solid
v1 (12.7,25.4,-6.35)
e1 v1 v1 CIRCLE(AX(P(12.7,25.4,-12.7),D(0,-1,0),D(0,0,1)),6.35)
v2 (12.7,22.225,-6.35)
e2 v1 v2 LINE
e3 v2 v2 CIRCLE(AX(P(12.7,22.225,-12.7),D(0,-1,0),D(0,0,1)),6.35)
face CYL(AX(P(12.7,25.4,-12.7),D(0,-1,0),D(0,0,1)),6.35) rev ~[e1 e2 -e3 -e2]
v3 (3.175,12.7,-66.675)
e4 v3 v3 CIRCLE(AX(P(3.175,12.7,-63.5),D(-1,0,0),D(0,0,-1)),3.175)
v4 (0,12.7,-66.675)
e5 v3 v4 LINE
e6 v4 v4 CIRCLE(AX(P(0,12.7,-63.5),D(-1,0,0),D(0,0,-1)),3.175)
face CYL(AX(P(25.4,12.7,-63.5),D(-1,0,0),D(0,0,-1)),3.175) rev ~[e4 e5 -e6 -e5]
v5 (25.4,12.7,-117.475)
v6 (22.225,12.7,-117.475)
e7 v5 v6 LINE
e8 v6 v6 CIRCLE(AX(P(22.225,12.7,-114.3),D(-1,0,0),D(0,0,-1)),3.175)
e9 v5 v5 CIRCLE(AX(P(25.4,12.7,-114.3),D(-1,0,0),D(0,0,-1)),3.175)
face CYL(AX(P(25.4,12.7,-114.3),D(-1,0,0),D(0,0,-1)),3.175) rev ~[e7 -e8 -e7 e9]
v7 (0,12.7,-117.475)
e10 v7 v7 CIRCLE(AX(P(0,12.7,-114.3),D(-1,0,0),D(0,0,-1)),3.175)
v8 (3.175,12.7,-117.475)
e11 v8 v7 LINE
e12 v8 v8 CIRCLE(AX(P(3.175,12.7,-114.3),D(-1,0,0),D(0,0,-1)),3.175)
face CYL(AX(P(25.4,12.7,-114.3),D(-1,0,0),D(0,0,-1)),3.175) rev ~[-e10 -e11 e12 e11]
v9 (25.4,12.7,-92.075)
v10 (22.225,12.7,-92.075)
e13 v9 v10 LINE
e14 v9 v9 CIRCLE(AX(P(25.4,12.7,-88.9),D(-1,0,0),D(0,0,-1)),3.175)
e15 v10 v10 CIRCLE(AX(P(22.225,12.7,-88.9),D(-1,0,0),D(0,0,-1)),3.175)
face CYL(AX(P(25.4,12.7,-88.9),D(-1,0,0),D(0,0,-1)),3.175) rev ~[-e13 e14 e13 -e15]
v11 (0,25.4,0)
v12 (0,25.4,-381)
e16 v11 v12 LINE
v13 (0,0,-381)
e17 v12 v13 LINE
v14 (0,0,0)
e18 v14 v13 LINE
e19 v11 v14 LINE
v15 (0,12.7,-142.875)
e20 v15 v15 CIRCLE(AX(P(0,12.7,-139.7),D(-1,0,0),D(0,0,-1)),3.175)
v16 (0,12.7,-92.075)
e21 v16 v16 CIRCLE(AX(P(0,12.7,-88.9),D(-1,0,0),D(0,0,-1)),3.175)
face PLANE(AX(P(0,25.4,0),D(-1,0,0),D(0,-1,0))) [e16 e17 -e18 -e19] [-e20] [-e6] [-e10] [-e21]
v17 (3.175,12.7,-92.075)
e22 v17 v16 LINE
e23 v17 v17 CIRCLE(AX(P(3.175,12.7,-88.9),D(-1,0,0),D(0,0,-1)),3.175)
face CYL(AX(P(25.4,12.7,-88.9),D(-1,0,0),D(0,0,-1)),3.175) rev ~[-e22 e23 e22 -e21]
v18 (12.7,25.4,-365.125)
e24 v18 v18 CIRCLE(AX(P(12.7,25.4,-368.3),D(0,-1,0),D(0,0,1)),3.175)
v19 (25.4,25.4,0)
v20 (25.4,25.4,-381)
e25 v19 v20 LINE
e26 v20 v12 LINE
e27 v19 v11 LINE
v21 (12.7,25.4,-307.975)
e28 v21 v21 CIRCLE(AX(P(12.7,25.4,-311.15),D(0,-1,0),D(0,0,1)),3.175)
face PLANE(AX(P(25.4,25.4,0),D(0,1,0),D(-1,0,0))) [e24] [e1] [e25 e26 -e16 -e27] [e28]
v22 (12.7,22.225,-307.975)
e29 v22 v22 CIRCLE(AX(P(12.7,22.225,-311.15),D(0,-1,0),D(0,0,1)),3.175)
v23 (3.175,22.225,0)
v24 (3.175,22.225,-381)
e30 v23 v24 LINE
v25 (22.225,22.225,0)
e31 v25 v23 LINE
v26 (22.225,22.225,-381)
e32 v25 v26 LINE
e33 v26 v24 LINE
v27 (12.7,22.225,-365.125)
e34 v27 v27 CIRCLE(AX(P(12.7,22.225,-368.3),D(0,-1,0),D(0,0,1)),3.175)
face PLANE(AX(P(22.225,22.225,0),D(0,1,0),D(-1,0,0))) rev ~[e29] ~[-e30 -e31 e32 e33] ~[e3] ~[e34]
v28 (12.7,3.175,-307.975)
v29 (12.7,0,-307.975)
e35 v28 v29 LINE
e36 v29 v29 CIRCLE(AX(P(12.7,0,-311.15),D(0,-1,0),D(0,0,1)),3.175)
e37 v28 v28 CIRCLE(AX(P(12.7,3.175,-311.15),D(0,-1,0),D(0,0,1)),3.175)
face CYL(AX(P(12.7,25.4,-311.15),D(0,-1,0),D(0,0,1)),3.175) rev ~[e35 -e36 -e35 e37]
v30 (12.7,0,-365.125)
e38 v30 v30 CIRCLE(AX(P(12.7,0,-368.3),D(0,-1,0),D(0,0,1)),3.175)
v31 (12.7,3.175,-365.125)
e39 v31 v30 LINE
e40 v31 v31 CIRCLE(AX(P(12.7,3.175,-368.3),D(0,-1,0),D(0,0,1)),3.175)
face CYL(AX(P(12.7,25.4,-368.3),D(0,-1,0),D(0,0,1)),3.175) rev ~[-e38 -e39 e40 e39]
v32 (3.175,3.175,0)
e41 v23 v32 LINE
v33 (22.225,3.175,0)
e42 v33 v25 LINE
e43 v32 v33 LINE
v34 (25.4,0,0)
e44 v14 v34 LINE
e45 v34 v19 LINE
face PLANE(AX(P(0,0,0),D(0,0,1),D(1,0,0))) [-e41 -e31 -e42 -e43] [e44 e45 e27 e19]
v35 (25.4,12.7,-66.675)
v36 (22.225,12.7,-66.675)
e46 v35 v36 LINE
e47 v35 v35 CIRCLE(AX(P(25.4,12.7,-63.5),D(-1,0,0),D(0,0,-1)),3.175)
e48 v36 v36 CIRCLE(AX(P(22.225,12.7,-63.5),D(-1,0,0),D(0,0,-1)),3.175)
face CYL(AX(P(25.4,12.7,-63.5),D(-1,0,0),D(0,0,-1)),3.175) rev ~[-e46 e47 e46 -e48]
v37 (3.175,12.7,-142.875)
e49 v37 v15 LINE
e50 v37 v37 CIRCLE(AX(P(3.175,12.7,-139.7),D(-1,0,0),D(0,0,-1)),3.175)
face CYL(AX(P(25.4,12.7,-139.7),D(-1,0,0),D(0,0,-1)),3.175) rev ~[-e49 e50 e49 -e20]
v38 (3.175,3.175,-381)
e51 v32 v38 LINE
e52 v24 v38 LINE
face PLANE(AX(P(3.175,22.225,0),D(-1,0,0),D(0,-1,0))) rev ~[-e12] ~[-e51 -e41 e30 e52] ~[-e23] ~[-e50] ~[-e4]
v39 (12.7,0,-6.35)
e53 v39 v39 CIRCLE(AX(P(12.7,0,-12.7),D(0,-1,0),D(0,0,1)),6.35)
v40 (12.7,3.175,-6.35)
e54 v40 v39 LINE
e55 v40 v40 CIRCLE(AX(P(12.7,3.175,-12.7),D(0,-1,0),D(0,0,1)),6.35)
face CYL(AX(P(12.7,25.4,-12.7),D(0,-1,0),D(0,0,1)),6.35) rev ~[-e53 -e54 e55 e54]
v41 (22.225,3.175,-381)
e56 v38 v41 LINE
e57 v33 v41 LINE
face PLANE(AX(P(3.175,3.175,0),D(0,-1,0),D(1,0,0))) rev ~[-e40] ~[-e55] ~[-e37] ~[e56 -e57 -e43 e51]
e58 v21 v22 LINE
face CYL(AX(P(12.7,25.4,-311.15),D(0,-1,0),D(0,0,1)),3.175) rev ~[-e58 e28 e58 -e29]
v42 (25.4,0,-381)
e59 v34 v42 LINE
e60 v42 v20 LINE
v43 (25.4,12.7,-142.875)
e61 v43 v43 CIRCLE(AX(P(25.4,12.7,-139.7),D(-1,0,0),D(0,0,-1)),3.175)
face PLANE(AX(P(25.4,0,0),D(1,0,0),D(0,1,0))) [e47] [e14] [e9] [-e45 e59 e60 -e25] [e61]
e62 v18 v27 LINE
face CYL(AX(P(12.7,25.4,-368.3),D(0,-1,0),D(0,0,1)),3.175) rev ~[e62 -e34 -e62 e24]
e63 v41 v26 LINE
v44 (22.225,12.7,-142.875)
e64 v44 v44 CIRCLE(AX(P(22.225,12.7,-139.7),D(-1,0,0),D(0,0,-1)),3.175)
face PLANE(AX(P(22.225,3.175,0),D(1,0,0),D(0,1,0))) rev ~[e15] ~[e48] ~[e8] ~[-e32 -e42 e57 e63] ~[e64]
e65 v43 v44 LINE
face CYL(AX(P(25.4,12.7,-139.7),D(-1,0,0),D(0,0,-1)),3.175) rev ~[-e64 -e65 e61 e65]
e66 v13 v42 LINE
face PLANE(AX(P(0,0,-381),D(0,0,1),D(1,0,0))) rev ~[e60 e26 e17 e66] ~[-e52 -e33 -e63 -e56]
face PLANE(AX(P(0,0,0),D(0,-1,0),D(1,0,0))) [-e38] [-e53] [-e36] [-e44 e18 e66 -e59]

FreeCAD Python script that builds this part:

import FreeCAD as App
import Part
import Sketcher

V = App.Vector
Q = App.Units.Quantity


def add_polygon(sketch, points):
    """Adds a closed chain of lines whose ends are joined by coincident constraints."""
    first, n = sketch.GeometryCount, len(points)
    for a, b in zip(points, points[1:] + points[:1]):
        sketch.addGeometry(Part.LineSegment(App.Vector(*a, 0), App.Vector(*b, 0)), False)
    for i in range(n):
        sketch.addConstraint(Sketcher.Constraint("Coincident", first + i, 2, first + (i + 1) % n, 1))

doc = App.newDocument("Part")
params = doc.addObject("Spreadsheet::Sheet", "Params")
for row, (alias, value) in enumerate([
    ("sketch1_width", "1 in"),
    ("pad1_length", "15 in"),
    ("sketch2_diameter", "0.25 in"),
    ("hole_diameter", "0.25 in"),
    ("hole_depth", "1 in"),
    ("sketch3_diameter", "0.25 in"),
    ("hole2_diameter", "0.25 in"),
    ("hole2_depth", "1 in"),
    ("sketch4_diameter", "0.5 in"),
    ("hole3_diameter", "0.5 in"),
    ("hole3_depth", "1 in"),
], start=1):
    params.set(f"A{row}", alias)
    params.set(f"B{row}", "=" + value)
    params.setAlias(f"B{row}", alias)

body = doc.addObject("PartDesign::Body", "Body")

# Sketch on XY plane
sketch1 = doc.addObject("Sketcher::SketchObject", "Sketch")
body.addObject(sketch1)
sketch1.AttachmentSupport = (doc.XY_Plane, [""])
sketch1.MapMode = "FlatFace"
add_polygon(sketch1, [(0, 25), (0, 0), (25, 0), (25, 25)])  # lines 0-3
add_polygon(sketch1, [(22, 3), (3, 3), (3, 22), (22, 22)])  # lines 4-7
sketch1.addConstraint([
    Sketcher.Constraint("Vertical", 0),
    Sketcher.Constraint("Horizontal", 1),
    Sketcher.Constraint("Vertical", 2),
    Sketcher.Constraint("Horizontal", 3),
    Sketcher.Constraint("Horizontal", 4),
    Sketcher.Constraint("Vertical", 5),
    Sketcher.Constraint("Horizontal", 6),
    Sketcher.Constraint("Vertical", 7),
    Sketcher.Constraint("Coincident", 0, 2, -1, 1),
    Sketcher.Constraint("Equal", 3, 0),
    Sketcher.Constraint("Equal", 6, 5),
    Sketcher.Constraint("DistanceX", 1, 1, 1, 2, Q("1 in")),
    Sketcher.Constraint("DistanceX", -1, 1, 4, 2, Q("0.125 in")),
    Sketcher.Constraint("DistanceY", -1, 1, 4, 2, Q("0.125 in")),
    Sketcher.Constraint("DistanceY", 5, 2, 3, 2, Q("0.125 in")),
])
sketch1.setExpression("Constraints[19]", "Params.sketch1_width")
pad1 = doc.addObject("PartDesign::Pad", "Pad")
body.addObject(pad1)
pad1.Profile = sketch1
pad1.setExpression("Length", "Params.pad1_length")
pad1.Reversed = True

# Sketch on XZ plane
sketch2 = doc.addObject("Sketcher::SketchObject", "Sketch001")
body.addObject(sketch2)
sketch2.AttachmentSupport = (doc.XZ_Plane, [""])
sketch2.MapMode = "FlatFace"
sketch2.AttachmentOffset = App.Placement(V(0, 0, -1 * 25.4), App.Rotation())
sketch2.addGeometry([
    Part.Circle(V(12.7, -368.3, 0), V(0, 0, 1), 3.2),
    Part.Circle(V(12.7, -311.1, 0), V(0, 0, 1), 3.2),
], False)
sketch2.addConstraint([
    Sketcher.Constraint("Equal", 0, 1),
    Sketcher.Constraint("Vertical", 0, 3, 1, 3),
    Sketcher.Constraint("Diameter", 0, Q("0.25 in")),
    Sketcher.Constraint("DistanceX", -1, 1, 0, 3, Q("0.5 in")),
    Sketcher.Constraint("DistanceY", 0, 3, -1, 1, Q("14.5 in")),
    Sketcher.Constraint("DistanceY", 1, 3, -1, 1, Q("12.25 in")),
])
sketch2.setExpression("Constraints[2]", "Params.sketch2_diameter")
doc.recompute()
hole = doc.addObject("PartDesign::Hole", "Hole")
body.addObject(hole)
hole.Profile = sketch2
hole.ThreadType = "None"
hole.setExpression("Diameter", "Params.hole_diameter")
hole.DepthType = "Dimension"
hole.setExpression("Depth", "Params.hole_depth")
hole.DrillPoint = "Angled"
hole.DrillPointAngle = 118
hole.Reversed = True

# Sketch on YZ plane
sketch3 = doc.addObject("Sketcher::SketchObject", "Sketch002")
body.addObject(sketch3)
sketch3.AttachmentSupport = (doc.YZ_Plane, [""])
sketch3.MapMode = "FlatFace"
sketch3.AttachmentOffset = App.Placement(V(0, 0, 1 * 25.4), App.Rotation())
sketch3.addGeometry([
    Part.Circle(V(12.7, -63.5, 0), V(0, 0, 1), 3.2),
    Part.Circle(V(12.7, -88.9, 0), V(0, 0, 1), 3.2),
    Part.Circle(V(12.7, -114.3, 0), V(0, 0, 1), 3.2),
    Part.Circle(V(12.7, -139.7, 0), V(0, 0, 1), 3.2),
], False)
sketch3.addConstraint([
    Sketcher.Constraint("Equal", 0, 1),
    Sketcher.Constraint("Equal", 1, 2),
    Sketcher.Constraint("Equal", 2, 3),
    Sketcher.Constraint("Vertical", 0, 3, 1, 3),
    Sketcher.Constraint("Vertical", 1, 3, 2, 3),
    Sketcher.Constraint("Vertical", 2, 3, 3, 3),
    Sketcher.Constraint("Diameter", 0, Q("0.25 in")),
    Sketcher.Constraint("DistanceY", 1, 3, 0, 3, Q("1 in")),
    Sketcher.Constraint("DistanceY", 2, 3, 1, 3, Q("1 in")),
    Sketcher.Constraint("DistanceY", 3, 3, 2, 3, Q("1 in")),
    Sketcher.Constraint("DistanceX", -1, 1, 0, 3, Q("0.5 in")),
    Sketcher.Constraint("DistanceY", 0, 3, -1, 1, Q("2.5 in")),
])
sketch3.setExpression("Constraints[6]", "Params.sketch3_diameter")
doc.recompute()
hole2 = doc.addObject("PartDesign::Hole", "Hole001")
body.addObject(hole2)
hole2.Profile = sketch3
hole2.ThreadType = "None"
hole2.setExpression("Diameter", "Params.hole2_diameter")
hole2.DepthType = "Dimension"
hole2.setExpression("Depth", "Params.hole2_depth")
hole2.DrillPoint = "Angled"
hole2.DrillPointAngle = 118

# Sketch on XZ plane
sketch4 = doc.addObject("Sketcher::SketchObject", "Sketch003")
body.addObject(sketch4)
sketch4.AttachmentSupport = (doc.XZ_Plane, [""])
sketch4.MapMode = "FlatFace"
sketch4.AttachmentOffset = App.Placement(V(0, 0, -1 * 25.4), App.Rotation())
sketch4.addGeometry(Part.Circle(V(13, -13, 0), V(0, 0, 1), 6), False)
sketch4.addConstraint([
    Sketcher.Constraint("Diameter", 0, Q("0.5 in")),
    Sketcher.Constraint("DistanceX", -1, 1, 0, 3, Q("0.5 in")),
    Sketcher.Constraint("DistanceY", 0, 3, -1, 1, Q("0.5 in")),
])
sketch4.setExpression("Constraints[0]", "Params.sketch4_diameter")
doc.recompute()
hole3 = doc.addObject("PartDesign::Hole", "Hole002")
body.addObject(hole3)
hole3.Profile = sketch4
hole3.ThreadType = "None"
hole3.setExpression("Diameter", "Params.hole3_diameter")
hole3.DepthType = "Dimension"
hole3.setExpression("Depth", "Params.hole3_depth")
hole3.DrillPoint = "Angled"
hole3.DrillPointAngle = 118
hole3.Reversed = True

doc.recompute()
